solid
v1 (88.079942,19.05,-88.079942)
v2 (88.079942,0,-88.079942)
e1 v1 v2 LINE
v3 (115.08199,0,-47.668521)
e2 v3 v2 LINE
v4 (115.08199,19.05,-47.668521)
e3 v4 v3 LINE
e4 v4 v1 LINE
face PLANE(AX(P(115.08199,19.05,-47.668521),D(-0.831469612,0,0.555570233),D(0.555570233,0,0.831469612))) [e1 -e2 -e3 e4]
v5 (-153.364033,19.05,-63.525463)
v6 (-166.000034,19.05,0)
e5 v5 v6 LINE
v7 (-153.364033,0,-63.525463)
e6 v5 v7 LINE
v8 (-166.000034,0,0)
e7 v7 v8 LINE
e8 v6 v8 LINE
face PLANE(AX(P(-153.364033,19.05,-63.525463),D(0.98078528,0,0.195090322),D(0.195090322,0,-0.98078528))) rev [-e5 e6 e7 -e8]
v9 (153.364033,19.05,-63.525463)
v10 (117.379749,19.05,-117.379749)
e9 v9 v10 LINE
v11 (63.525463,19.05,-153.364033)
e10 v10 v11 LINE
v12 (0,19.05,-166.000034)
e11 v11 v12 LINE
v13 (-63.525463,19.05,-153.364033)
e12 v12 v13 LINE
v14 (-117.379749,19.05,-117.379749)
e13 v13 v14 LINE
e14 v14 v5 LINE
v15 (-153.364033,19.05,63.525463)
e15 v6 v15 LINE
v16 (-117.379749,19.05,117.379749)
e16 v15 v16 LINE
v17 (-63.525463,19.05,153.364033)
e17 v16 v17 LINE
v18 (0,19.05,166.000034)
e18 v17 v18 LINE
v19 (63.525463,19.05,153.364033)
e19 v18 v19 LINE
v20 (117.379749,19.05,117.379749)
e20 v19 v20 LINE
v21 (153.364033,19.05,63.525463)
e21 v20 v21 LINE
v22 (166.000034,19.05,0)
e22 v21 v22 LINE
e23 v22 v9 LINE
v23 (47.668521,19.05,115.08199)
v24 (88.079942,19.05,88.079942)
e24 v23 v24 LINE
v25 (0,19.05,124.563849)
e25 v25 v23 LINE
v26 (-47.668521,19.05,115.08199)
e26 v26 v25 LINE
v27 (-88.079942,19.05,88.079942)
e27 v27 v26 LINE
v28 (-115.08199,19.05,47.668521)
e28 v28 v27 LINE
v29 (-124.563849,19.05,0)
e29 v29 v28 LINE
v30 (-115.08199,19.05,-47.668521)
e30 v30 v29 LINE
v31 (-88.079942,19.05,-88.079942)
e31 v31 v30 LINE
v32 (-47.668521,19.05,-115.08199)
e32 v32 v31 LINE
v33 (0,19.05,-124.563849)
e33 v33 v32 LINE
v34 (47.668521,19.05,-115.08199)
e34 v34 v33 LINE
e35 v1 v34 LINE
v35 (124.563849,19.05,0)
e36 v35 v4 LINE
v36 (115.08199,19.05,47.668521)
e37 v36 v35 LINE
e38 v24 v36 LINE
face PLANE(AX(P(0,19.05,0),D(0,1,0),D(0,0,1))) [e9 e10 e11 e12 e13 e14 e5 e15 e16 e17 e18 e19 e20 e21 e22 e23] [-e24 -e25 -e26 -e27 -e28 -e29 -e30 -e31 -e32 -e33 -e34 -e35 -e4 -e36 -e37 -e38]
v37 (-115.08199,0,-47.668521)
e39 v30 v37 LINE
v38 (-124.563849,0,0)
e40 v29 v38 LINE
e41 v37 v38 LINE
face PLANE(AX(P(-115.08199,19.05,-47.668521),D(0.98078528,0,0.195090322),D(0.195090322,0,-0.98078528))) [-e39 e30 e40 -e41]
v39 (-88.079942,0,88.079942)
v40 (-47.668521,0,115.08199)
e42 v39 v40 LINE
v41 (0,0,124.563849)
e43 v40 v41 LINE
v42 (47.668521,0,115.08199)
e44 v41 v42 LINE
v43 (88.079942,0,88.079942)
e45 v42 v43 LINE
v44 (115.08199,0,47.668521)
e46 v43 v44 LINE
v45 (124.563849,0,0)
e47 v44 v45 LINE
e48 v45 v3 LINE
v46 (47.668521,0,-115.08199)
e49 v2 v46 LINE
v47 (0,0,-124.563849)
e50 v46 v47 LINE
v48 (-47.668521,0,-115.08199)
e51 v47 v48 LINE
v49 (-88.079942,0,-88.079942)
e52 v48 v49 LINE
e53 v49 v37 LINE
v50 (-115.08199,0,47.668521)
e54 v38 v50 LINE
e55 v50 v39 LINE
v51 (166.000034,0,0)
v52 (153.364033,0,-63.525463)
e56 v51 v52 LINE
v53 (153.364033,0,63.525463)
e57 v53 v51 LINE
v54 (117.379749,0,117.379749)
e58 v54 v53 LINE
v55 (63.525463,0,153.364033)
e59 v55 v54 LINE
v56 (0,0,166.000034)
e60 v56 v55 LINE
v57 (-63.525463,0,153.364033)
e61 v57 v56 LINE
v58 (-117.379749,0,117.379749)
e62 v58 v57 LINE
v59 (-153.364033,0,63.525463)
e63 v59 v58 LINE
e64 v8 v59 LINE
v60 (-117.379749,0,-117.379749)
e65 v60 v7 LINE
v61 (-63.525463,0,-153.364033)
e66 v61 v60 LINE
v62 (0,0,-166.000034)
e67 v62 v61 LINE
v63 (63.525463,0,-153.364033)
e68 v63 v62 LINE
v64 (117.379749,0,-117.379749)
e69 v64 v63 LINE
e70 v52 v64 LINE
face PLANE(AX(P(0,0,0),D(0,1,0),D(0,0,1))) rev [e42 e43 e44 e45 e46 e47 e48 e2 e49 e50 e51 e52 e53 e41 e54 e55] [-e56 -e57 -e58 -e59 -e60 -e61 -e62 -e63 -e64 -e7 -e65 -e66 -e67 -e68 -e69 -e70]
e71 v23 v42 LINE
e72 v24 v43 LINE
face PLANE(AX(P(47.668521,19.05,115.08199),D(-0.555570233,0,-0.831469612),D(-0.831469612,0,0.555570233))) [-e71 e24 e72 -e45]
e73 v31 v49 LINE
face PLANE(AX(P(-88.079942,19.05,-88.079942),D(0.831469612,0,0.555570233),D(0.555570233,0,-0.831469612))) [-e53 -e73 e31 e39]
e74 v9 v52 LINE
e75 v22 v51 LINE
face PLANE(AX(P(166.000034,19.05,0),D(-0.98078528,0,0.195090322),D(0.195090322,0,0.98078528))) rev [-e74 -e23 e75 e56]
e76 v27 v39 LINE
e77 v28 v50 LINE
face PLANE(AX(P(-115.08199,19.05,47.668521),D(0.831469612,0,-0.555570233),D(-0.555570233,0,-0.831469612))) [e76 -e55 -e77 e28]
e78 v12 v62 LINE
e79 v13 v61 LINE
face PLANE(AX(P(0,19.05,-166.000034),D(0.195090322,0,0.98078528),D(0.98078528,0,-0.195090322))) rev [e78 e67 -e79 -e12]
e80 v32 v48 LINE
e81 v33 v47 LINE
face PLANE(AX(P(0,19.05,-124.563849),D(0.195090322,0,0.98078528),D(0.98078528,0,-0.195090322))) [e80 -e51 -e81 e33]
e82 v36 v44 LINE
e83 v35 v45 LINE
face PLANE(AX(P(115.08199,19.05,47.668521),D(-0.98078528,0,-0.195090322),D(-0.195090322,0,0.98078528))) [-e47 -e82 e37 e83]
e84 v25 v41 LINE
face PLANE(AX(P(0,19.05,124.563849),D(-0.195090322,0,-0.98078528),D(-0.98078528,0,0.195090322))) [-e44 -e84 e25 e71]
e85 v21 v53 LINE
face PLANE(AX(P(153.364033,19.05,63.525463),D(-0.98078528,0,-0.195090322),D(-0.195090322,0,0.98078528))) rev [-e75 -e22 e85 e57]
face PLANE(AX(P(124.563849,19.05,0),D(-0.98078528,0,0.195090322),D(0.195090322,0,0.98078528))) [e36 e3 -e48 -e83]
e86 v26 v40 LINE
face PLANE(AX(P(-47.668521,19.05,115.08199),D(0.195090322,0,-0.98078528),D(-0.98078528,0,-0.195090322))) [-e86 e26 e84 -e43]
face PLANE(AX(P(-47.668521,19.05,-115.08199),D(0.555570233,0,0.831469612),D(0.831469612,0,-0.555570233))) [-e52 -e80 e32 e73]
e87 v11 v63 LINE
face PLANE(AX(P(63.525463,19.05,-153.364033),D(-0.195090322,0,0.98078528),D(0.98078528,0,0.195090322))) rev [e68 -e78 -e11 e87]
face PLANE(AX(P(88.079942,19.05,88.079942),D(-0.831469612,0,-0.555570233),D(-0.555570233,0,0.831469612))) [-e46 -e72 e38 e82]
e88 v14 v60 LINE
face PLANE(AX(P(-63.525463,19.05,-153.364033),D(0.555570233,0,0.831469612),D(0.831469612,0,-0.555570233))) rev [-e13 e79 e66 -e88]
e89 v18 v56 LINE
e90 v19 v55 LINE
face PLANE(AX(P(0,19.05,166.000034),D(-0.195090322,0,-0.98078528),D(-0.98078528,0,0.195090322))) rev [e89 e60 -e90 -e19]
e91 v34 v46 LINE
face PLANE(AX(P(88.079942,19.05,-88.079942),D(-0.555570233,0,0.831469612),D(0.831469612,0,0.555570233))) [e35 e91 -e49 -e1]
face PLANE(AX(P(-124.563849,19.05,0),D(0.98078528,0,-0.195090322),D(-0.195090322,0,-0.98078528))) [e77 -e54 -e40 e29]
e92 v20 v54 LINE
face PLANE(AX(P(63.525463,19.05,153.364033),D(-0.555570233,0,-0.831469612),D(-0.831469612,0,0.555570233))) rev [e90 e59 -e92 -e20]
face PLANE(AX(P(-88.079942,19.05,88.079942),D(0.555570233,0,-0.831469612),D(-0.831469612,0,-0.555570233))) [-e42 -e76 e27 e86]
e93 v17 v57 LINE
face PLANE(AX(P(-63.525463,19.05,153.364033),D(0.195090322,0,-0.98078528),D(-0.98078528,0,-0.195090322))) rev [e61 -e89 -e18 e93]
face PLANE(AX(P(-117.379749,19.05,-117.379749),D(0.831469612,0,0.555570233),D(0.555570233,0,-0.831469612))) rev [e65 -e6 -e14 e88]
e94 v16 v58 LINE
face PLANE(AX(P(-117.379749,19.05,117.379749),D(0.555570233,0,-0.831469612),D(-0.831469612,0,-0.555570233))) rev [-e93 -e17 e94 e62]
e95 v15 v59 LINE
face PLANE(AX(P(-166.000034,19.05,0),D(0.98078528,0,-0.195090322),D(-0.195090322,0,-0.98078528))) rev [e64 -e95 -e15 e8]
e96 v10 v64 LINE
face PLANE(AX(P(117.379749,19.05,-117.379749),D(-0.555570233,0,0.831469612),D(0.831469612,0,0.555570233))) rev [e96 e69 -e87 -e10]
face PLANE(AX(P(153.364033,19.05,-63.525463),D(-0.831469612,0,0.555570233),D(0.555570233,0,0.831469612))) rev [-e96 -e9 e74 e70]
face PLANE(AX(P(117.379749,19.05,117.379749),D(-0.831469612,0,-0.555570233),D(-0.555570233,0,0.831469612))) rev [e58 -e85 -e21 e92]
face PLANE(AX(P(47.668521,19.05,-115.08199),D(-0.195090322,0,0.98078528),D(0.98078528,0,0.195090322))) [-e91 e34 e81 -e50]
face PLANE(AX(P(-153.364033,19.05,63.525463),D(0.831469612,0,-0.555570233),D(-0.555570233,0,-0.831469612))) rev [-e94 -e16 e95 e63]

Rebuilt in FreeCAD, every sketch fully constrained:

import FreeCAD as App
import Part
import Sketcher
from FreeCAD import Vector
Q = App.Units.Quantity

doc = App.newDocument("Part")
body = doc.addObject("PartDesign::Body", "Body")

# Sketch on XZ plane
sketch1 = body.newObject("Sketcher::SketchObject", "Sketch")
sketch1.AttachmentSupport = (doc.getObject("XZ_Plane"), [""])
sketch1.MapMode = "FlatFace"
sketch1.addGeometry([
    Part.LineSegment(Vector(166.000034, 0, 0), Vector(153.364033, -63.525463, 0)),  # 0
    Part.LineSegment(Vector(153.364033, -63.525463, 0), Vector(117.379749, -117.379749, 0)),  # 1
    Part.LineSegment(Vector(117.379749, -117.379749, 0), Vector(63.525463, -153.364033, 0)),  # 2
    Part.LineSegment(Vector(63.525463, -153.364033, 0), Vector(0, -166.000034, 0)),  # 3
    Part.LineSegment(Vector(0, -166.000034, 0), Vector(-63.525463, -153.364033, 0)),  # 4
    Part.LineSegment(Vector(-63.525463, -153.364033, 0), Vector(-117.379749, -117.379749, 0)),  # 5
    Part.LineSegment(Vector(-117.379749, -117.379749, 0), Vector(-153.364033, -63.525463, 0)),  # 6
    Part.LineSegment(Vector(-153.364033, -63.525463, 0), Vector(-166.000034, 0, 0)),  # 7
    Part.LineSegment(Vector(-166.000034, 0, 0), Vector(-153.364033, 63.525463, 0)),  # 8
    Part.LineSegment(Vector(-153.364033, 63.525463, 0), Vector(-117.379749, 117.379749, 0)),  # 9
    Part.LineSegment(Vector(-117.379749, 117.379749, 0), Vector(-63.525463, 153.364033, 0)),  # 10
    Part.LineSegment(Vector(-63.525463, 153.364033, 0), Vector(0, 166.000034, 0)),  # 11
    Part.LineSegment(Vector(0, 166.000034, 0), Vector(63.525463, 153.364033, 0)),  # 12
    Part.LineSegment(Vector(63.525463, 153.364033, 0), Vector(117.379749, 117.379749, 0)),  # 13
    Part.LineSegment(Vector(117.379749, 117.379749, 0), Vector(153.364033, 63.525463, 0)),  # 14
    Part.LineSegment(Vector(153.364033, 63.525463, 0), Vector(166.000034, 0, 0)),  # 15
    Part.LineSegment(Vector(115.08199, -47.668521, 0), Vector(124.563849, 0, 0)),  # 16
    Part.LineSegment(Vector(124.563849, 0, 0), Vector(115.08199, 47.668521, 0)),  # 17
    Part.LineSegment(Vector(115.08199, 47.668521, 0), Vector(88.079942, 88.079942, 0)),  # 18
    Part.LineSegment(Vector(88.079942, 88.079942, 0), Vector(47.668521, 115.08199, 0)),  # 19
    Part.LineSegment(Vector(47.668521, 115.08199, 0), Vector(0, 124.563849, 0)),  # 20
    Part.LineSegment(Vector(0, 124.563849, 0), Vector(-47.668521, 115.08199, 0)),  # 21
    Part.LineSegment(Vector(-47.668521, 115.08199, 0), Vector(-88.079942, 88.079942, 0)),  # 22
    Part.LineSegment(Vector(-88.079942, 88.079942, 0), Vector(-115.08199, 47.668521, 0)),  # 23
    Part.LineSegment(Vector(-115.08199, 47.668521, 0), Vector(-124.563849, 0, 0)),  # 24
    Part.LineSegment(Vector(-124.563849, 0, 0), Vector(-115.08199, -47.668521, 0)),  # 25
    Part.LineSegment(Vector(-115.08199, -47.668521, 0), Vector(-88.079942, -88.079942, 0)),  # 26
    Part.LineSegment(Vector(-88.079942, -88.079942, 0), Vector(-47.668521, -115.08199, 0)),  # 27
    Part.LineSegment(Vector(-47.668521, -115.08199, 0), Vector(0, -124.563849, 0)),  # 28
    Part.LineSegment(Vector(0, -124.563849, 0), Vector(47.668521, -115.08199, 0)),  # 29
    Part.LineSegment(Vector(47.668521, -115.08199, 0), Vector(88.079942, -88.079942, 0)),  # 30
    Part.LineSegment(Vector(88.079942, -88.079942, 0), Vector(115.08199, -47.668521, 0)),  # 31
], False)
sketch1.addConstraint([
    Sketcher.Constraint("Coincident", 0, 2, 1, 1),
    Sketcher.Constraint("Coincident", 1, 2, 2, 1),
    Sketcher.Constraint("Coincident", 2, 2, 3, 1),
    Sketcher.Constraint("Coincident", 3, 2, 4, 1),
    Sketcher.Constraint("Coincident", 4, 2, 5, 1),
    Sketcher.Constraint("Coincident", 5, 2, 6, 1),
    Sketcher.Constraint("Coincident", 6, 2, 7, 1),
    Sketcher.Constraint("Coincident", 7, 2, 8, 1),
    Sketcher.Constraint("Coincident", 8, 2, 9, 1),
    Sketcher.Constraint("Coincident", 9, 2, 10, 1),
    Sketcher.Constraint("Coincident", 10, 2, 11, 1),
    Sketcher.Constraint("Coincident", 11, 2, 12, 1),
    Sketcher.Constraint("Coincident", 12, 2, 13, 1),
    Sketcher.Constraint("Coincident", 13, 2, 14, 1),
    Sketcher.Constraint("Coincident", 14, 2, 15, 1),
    Sketcher.Constraint("Coincident", 15, 2, 0, 1),
    Sketcher.Constraint("Coincident", 16, 2, 17, 1),
    Sketcher.Constraint("Coincident", 17, 2, 18, 1),
    Sketcher.Constraint("Coincident", 18, 2, 19, 1),
    Sketcher.Constraint("Coincident", 19, 2, 20, 1),
    Sketcher.Constraint("Coincident", 20, 2, 21, 1),
    Sketcher.Constraint("Coincident", 21, 2, 22, 1),
    Sketcher.Constraint("Coincident", 22, 2, 23, 1),
    Sketcher.Constraint("Coincident", 23, 2, 24, 1),
    Sketcher.Constraint("Coincident", 24, 2, 25, 1),
    Sketcher.Constraint("Coincident", 25, 2, 26, 1),
    Sketcher.Constraint("Coincident", 26, 2, 27, 1),
    Sketcher.Constraint("Coincident", 27, 2, 28, 1),
    Sketcher.Constraint("Coincident", 28, 2, 29, 1),
    Sketcher.Constraint("Coincident", 29, 2, 30, 1),
    Sketcher.Constraint("Coincident", 30, 2, 31, 1),
    Sketcher.Constraint("Coincident", 31, 2, 16, 1),
    Sketcher.Constraint("Symmetric", 0, 2, 8, 2, -1, 1),
    Sketcher.Constraint("Symmetric", 1, 2, 9, 2, -1, 1),
    Sketcher.Constraint("Symmetric", 2, 2, 10, 2, -1, 1),
    Sketcher.Constraint("Symmetric", 3, 2, 11, 2, -1, 1),
    Sketcher.Constraint("Symmetric", 4, 2, 12, 2, -1, 1),
    Sketcher.Constraint("Symmetric", 5, 2, 13, 2, -1, 1),
    Sketcher.Constraint("Symmetric", 6, 2, 14, 2, -1, 1),
    Sketcher.Constraint("Symmetric", 7, 2, 15, 2, -1, 1),
    Sketcher.Constraint("Symmetric", 16, 2, 24, 2, -1, 1),
    Sketcher.Constraint("Symmetric", 17, 2, 25, 2, -1, 1),
    Sketcher.Constraint("Symmetric", 18, 2, 26, 2, -1, 1),
    Sketcher.Constraint("Symmetric", 19, 2, 27, 2, -1, 1),
    Sketcher.Constraint("Symmetric", 20, 2, 28, 2, -1, 1),
    Sketcher.Constraint("Symmetric", 21, 2, 29, 2, -1, 1),
    Sketcher.Constraint("Symmetric", 22, 2, 30, 2, -1, 1),
    Sketcher.Constraint("Symmetric", 23, 2, 31, 2, -1, 1),
    Sketcher.Constraint("Symmetric", 2, 2, 4, 2, -2),
    Sketcher.Constraint("Symmetric", 1, 2, 5, 2, -2),
    Sketcher.Constraint("Symmetric", 0, 2, 6, 2, -2),
    Sketcher.Constraint("Symmetric", 19, 2, 21, 2, -2),
    Sketcher.Constraint("Symmetric", 18, 2, 22, 2, -2),
    Sketcher.Constraint("Symmetric", 17, 2, 23, 2, -2),
    Sketcher.Constraint("PointOnObject", 3, 2, -2),
    Sketcher.Constraint("PointOnObject", 7, 2, -1),
    Sketcher.Constraint("PointOnObject", 16, 2, -1),
    Sketcher.Constraint("PointOnObject", 20, 2, -2),
    Sketcher.Constraint("Perpendicular", 0, 4),
    Sketcher.Constraint("Perpendicular", 1, 5),
    Sketcher.Constraint("Perpendicular", 12, 16),
    Sketcher.Constraint("Parallel", 14, 18),
    Sketcher.Constraint("Parallel", 13, 19),
    Sketcher.Constraint("Perpendicular", 16, 20),
    Sketcher.Constraint("Equal", 0, 1),
    Sketcher.Constraint("Equal", 1, 2),
    Sketcher.Constraint("Equal", 2, 3),
    Sketcher.Constraint("Equal", 17, 18),
    Sketcher.Constraint("Equal", 18, 19),
    Sketcher.Constraint("Equal", 19, 20),
    Sketcher.Constraint("Distance", 0, Q("2.55 in")),
    Sketcher.Constraint("Angle", 0, Q("-101.25 deg")),
    Sketcher.Constraint("Angle", 1, Q("-123.75 deg")),
    Sketcher.Constraint("DistanceX", 1, 2, 16, 2, 7.184099),
])
pad1 = body.newObject("PartDesign::Pad", "Pad")
pad1.Profile = sketch1
pad1.Length = Q("0.75 in")
pad1.Reversed = True

doc.recompute()
